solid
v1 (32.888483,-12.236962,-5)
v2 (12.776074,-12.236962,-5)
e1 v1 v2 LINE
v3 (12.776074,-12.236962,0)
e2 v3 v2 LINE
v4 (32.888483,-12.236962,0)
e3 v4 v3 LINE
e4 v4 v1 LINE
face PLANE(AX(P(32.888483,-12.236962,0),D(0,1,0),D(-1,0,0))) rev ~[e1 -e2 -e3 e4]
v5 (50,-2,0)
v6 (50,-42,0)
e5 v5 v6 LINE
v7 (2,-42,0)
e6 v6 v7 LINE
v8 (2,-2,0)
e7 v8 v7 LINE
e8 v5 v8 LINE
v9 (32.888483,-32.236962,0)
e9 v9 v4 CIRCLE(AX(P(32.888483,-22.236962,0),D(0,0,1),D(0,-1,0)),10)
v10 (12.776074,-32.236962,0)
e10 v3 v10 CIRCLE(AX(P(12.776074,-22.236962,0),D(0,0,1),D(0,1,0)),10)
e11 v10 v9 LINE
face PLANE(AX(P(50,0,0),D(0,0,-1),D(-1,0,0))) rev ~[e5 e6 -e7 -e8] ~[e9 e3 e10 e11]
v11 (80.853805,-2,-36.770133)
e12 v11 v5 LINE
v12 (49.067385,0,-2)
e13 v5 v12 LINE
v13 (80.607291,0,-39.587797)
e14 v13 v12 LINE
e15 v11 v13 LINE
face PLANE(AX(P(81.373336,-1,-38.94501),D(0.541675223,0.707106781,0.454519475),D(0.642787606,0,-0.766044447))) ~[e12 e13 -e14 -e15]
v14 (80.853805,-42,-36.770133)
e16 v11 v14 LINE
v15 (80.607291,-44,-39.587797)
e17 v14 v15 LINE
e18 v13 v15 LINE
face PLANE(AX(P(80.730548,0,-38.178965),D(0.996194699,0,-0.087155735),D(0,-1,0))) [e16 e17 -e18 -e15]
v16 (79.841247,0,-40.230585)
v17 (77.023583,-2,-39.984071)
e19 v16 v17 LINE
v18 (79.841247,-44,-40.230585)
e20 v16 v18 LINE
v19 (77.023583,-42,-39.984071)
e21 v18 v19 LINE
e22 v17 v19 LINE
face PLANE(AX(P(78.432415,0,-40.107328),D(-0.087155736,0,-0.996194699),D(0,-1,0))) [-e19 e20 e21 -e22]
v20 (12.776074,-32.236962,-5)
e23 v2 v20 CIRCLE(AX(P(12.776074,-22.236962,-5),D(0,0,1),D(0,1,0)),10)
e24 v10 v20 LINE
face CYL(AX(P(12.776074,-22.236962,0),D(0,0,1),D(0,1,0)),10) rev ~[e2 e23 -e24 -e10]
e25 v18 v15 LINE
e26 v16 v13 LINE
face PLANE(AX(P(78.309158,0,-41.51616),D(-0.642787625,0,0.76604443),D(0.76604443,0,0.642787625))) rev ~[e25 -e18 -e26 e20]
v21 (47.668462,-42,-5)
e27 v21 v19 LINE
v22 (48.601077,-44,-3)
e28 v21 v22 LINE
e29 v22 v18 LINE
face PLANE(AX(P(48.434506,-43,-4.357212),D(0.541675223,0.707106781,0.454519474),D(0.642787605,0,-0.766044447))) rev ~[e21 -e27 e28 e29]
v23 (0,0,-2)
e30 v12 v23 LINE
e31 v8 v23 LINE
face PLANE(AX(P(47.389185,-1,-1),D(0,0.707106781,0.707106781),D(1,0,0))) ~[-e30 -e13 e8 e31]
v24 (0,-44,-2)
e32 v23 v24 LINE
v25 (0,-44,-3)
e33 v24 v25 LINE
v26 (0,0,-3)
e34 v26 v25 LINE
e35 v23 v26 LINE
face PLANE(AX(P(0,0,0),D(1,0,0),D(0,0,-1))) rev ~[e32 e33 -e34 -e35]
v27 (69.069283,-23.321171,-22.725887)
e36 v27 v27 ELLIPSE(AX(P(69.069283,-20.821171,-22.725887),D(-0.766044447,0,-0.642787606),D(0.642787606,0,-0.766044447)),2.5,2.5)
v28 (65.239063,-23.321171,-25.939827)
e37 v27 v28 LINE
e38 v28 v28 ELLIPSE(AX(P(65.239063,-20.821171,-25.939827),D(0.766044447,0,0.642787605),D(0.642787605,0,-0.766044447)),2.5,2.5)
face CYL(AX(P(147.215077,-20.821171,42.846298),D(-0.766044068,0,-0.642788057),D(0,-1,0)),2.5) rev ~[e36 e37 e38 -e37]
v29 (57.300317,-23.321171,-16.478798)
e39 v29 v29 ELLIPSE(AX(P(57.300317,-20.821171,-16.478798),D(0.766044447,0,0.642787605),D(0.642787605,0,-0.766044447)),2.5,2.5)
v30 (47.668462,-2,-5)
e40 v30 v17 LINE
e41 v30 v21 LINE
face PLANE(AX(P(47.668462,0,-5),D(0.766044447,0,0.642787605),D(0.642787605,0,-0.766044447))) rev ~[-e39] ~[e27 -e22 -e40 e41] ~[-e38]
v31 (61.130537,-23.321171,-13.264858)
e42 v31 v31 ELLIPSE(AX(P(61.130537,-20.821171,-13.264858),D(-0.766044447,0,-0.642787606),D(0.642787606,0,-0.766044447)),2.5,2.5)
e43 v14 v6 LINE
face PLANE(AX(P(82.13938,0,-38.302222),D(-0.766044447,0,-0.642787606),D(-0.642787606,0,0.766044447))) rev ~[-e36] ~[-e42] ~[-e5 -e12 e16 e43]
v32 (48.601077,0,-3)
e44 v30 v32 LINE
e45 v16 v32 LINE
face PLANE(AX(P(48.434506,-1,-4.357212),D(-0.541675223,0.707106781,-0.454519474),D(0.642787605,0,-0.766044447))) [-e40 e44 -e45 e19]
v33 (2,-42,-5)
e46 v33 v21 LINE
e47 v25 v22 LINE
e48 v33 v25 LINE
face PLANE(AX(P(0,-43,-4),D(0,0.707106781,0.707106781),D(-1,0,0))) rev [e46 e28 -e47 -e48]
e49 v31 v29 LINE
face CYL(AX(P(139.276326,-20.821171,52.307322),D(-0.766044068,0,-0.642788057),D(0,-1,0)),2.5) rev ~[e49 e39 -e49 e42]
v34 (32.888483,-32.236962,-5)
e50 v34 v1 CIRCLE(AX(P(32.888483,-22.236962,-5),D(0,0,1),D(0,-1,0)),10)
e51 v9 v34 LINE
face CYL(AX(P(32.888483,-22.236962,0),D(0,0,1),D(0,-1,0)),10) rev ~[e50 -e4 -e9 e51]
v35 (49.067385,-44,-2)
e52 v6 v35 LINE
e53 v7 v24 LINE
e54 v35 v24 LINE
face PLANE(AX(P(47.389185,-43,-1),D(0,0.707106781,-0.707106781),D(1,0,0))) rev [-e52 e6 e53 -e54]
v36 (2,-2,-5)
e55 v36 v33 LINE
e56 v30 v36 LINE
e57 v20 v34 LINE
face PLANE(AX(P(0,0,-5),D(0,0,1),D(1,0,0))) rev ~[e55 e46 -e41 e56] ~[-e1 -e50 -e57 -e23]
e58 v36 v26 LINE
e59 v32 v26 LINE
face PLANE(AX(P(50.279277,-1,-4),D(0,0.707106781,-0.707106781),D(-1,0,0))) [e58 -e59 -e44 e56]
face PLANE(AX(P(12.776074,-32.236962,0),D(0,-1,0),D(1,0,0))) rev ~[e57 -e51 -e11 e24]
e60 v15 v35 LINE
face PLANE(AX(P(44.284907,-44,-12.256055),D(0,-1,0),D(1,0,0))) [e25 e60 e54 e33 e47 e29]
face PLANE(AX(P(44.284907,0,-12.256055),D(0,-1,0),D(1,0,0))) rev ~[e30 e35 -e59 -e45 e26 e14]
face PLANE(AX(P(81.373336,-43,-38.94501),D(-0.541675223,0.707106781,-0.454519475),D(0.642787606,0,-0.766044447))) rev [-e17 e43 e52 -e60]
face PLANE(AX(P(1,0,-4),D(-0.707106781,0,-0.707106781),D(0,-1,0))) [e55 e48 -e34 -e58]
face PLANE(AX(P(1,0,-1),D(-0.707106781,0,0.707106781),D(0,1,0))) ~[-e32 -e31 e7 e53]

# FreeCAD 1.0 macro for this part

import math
import FreeCAD as App
import Part
import Sketcher

V = App.Vector
Q = App.Units.Quantity


def edges_at(feature, points):
    """Names of the edges that pass closest to the given points."""
    edges = feature.Shape.Edges
    near = lambda p: min(range(len(edges)), key=lambda i: edges[i].distToShape(Part.Vertex(*p))[0])
    return sorted({f"Edge{near(p) + 1}" for p in points})

doc = App.newDocument("Part")
body = doc.addObject("PartDesign::Body", "Body")

sketch1 = doc.addObject("Sketcher::SketchObject", "Sketch")
body.addObject(sketch1)
sketch1.AttachmentSupport = (doc.XZ_Plane, [""])
sketch1.MapMode = "FlatFace"
sketch1.addGeometry([
    Part.LineSegment(V(50, 0, 0), V(0, 0, 0)),
    Part.LineSegment(V(0, 0, 0), V(0, -5, 0)),
    Part.LineSegment(V(0, -5, 0), V(47.7, -5, 0)),
    Part.LineSegment(V(47.7, -5, 0), V(78.3, -41.5, 0)),
    Part.LineSegment(V(78.3, -41.5, 0), V(82.1, -38.3, 0)),
    Part.LineSegment(V(82.1, -38.3, 0), V(50, 0, 0)),
], False)
sketch1.addConstraint([
    Sketcher.Constraint("Coincident", 0, 2, 1, 1),
    Sketcher.Constraint("Coincident", 1, 2, 2, 1),
    Sketcher.Constraint("Coincident", 2, 2, 3, 1),
    Sketcher.Constraint("Coincident", 3, 2, 4, 1),
    Sketcher.Constraint("Coincident", 4, 2, 5, 1),
    Sketcher.Constraint("Coincident", 5, 2, 0, 1),
    Sketcher.Constraint("Horizontal", 0),
    Sketcher.Constraint("Vertical", 1),
    Sketcher.Constraint("Horizontal", 2),
    Sketcher.Constraint("Coincident", 0, 2, -1, 1),
    Sketcher.Constraint("Perpendicular", 3, 4),
    Sketcher.Constraint("Perpendicular", 4, 5),
    Sketcher.Constraint("DistanceX", 0, 2, 0, 1, 50.0),
    Sketcher.Constraint("DistanceY", 1, 2, 1, 1, 5.0),
    Sketcher.Constraint("Angle", 3, Q("-50 deg")),
    Sketcher.Constraint("Distance", 4, 5.0),
    Sketcher.Constraint("Distance", 5, 50.0),
])
pad1 = doc.addObject("PartDesign::Pad", "Pad")
body.addObject(pad1)
pad1.Profile = sketch1
pad1.Length = 44

sketch2 = doc.addObject("Sketcher::SketchObject", "Sketch001")
body.addObject(sketch2)
sketch2.AttachmentSupport = (doc.XY_Plane, [""])
sketch2.MapMode = "FlatFace"
sketch2.addGeometry([
    Part.ArcOfCircle(Part.Circle(V(13, -22, 0), V(0, 0, 1), 10), math.radians(90), math.radians(270)),
    Part.LineSegment(V(13, -32, 0), V(33, -32, 0)),
    Part.ArcOfCircle(Part.Circle(V(33, -22, 0), V(0, 0, 1), 10), math.radians(-90), math.radians(90)),
    Part.LineSegment(V(33, -12, 0), V(13, -12, 0)),
], False)
sketch2.addConstraint([
    Sketcher.Constraint("Tangent", 0, 2, 1, 1),
    Sketcher.Constraint("Tangent", 1, 2, 2, 1),
    Sketcher.Constraint("Tangent", 2, 2, 3, 1),
    Sketcher.Constraint("Tangent", 3, 2, 0, 1),
    Sketcher.Constraint("Horizontal", 1),
    Sketcher.Constraint("Horizontal", 3),
    Sketcher.Constraint("Radius", 0, 10.0),
    Sketcher.Constraint("DistanceX", 1, 1, 1, 2, 20.112409),
    Sketcher.Constraint("DistanceY", 0, 3, -1, 1, 22.236962),
    Sketcher.Constraint("DistanceX", -1, 1, 0, 3, 12.776074),
])
pocket1 = doc.addObject("PartDesign::Pocket", "Pocket")
body.addObject(pocket1)
pocket1.Profile = sketch2
pocket1.Length = 25

sketch3 = doc.addObject("Sketcher::SketchObject", "Sketch002")
body.addObject(sketch3)
sketch3.Placement = App.Placement(V(29.34119, 0, 24.620211), App.Rotation(V(0, 1, 0), V(-0.642788057, 0, 0.766044068), V(0.766044068, 0, 0.642788057), "ZXY"))
sketch3.addGeometry([
    Part.Circle(V(-20.8, -49.5, 0), V(0, 0, 1), 2.5),
    Part.Circle(V(-20.8, -61.8, 0), V(0, 0, 1), 2.5),
], False)
sketch3.addConstraint([
    Sketcher.Constraint("Equal", 0, 1),
    Sketcher.Constraint("Vertical", 0, 3, 1, 3),
    Sketcher.Constraint("Diameter", 0, 5.0),
    Sketcher.Constraint("DistanceX", 0, 3, -1, 1, 20.821171),
    Sketcher.Constraint("DistanceY", 1, 3, -1, 1, 61.805941),
    Sketcher.Constraint("DistanceY", 0, 3, -1, 1, 49.455445),
])
doc.recompute()
hole = doc.addObject("PartDesign::Hole", "Hole")
body.addObject(hole)
hole.Profile = sketch3
hole.ThreadType = "None"
hole.Diameter = 5
hole.DepthType = "ThroughAll"
doc.recompute()

chamfer = doc.addObject("PartDesign::Chamfer", "Chamfer")
body.addObject(chamfer)
chamfer.Base = (hole, edges_at(hole, [
    (66.07, -44, -19.151),
    (62.989, -44, -23.258),
    (78.309, -22, -41.516),
    (82.139, -22, -38.302),
    (66.07, 0, -19.151),
    (62.989, 0, -23.258),
]))
chamfer.Size = 2
doc.recompute()

chamfer2 = doc.addObject("PartDesign::Chamfer", "Chamfer001")
body.addObject(chamfer2)
chamfer2.Base = (chamfer, edges_at(chamfer, [
    (23.695, 0, 0),
    (25.14, 0, -5),
    (0, -22, 0),
    (0, -22, -5),
    (23.695, -44, 0),
    (25.14, -44, -5),
]))
chamfer2.Size = 2

doc.recompute()
